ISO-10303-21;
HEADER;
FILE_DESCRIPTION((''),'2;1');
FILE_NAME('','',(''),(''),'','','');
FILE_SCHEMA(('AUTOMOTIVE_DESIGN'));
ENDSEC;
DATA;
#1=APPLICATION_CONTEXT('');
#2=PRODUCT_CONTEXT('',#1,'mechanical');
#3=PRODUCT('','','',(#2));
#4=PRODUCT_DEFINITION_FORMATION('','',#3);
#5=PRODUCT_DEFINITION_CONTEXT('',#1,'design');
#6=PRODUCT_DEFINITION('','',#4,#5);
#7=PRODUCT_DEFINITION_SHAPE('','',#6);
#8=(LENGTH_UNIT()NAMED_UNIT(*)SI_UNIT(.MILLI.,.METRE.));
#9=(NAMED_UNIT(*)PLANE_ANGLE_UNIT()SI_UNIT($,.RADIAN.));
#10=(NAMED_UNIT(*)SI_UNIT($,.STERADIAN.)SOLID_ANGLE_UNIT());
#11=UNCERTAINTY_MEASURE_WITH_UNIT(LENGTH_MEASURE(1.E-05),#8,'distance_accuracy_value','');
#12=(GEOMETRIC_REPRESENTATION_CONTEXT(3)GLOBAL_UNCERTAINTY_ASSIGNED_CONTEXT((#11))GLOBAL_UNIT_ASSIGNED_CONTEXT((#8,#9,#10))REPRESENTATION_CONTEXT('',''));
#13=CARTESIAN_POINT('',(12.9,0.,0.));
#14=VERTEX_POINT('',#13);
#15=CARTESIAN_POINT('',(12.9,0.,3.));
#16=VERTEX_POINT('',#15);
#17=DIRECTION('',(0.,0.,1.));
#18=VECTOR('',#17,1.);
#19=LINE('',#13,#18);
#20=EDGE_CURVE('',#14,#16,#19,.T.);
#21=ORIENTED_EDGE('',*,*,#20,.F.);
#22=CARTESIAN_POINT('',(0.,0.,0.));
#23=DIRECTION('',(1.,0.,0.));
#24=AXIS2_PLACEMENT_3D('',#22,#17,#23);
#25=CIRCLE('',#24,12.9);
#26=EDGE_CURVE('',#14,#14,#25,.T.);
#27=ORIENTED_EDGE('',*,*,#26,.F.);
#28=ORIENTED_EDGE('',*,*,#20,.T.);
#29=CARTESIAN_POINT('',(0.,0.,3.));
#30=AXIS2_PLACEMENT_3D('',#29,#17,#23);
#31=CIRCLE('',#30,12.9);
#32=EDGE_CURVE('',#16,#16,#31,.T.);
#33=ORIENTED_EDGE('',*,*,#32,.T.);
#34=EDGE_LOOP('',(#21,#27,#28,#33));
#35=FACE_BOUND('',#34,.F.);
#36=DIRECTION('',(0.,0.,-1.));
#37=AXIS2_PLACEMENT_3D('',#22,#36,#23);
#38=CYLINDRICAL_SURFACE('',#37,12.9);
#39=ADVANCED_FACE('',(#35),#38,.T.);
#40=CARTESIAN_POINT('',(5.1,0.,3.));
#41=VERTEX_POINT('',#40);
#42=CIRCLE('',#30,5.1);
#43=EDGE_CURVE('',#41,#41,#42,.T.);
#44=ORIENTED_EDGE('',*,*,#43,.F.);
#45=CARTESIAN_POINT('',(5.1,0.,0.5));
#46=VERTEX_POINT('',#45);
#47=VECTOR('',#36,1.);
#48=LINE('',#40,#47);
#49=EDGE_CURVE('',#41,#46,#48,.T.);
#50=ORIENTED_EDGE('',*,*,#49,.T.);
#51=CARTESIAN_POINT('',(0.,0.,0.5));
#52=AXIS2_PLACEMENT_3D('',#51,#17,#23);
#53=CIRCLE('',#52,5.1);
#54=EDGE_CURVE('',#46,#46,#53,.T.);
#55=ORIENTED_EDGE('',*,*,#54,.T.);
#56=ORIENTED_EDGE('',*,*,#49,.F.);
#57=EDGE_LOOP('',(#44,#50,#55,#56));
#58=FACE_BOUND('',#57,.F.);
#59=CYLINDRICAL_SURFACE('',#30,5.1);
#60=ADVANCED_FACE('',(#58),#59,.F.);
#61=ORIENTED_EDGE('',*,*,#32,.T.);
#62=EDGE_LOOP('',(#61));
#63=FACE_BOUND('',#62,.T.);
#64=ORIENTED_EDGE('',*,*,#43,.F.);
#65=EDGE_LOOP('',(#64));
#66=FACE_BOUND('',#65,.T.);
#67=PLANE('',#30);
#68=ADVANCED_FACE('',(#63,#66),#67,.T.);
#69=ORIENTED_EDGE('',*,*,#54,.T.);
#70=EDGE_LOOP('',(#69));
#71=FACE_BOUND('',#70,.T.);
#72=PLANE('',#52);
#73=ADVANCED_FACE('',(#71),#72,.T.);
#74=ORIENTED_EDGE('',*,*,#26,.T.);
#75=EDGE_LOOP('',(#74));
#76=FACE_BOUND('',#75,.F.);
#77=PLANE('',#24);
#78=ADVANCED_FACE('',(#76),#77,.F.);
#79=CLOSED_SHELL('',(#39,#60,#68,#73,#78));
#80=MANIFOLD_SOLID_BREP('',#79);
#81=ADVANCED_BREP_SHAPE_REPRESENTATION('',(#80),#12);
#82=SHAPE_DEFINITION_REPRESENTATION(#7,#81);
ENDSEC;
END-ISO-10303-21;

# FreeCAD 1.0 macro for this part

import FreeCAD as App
import Part
import Sketcher
Q = App.Units.Quantity

doc = App.newDocument("Part")
body = doc.addObject("PartDesign::Body", "Body")

# Sketch on XY plane
sketch1 = body.newObject("Sketcher::SketchObject", "Sketch")
sketch1.AttachmentSupport = (doc.getObject("XY_Plane"), [""])
sketch1.MapMode = "FlatFace"
sketch1.addGeometry(Part.Circle(App.Vector(0, 0, 0), App.Vector(0, 0, 1), 12.9), False)
sketch1.addConstraint(Sketcher.Constraint("Coincident", 0, 3, -1, 1))
sketch1.addConstraint(Sketcher.Constraint("Diameter", 0, Q("25.8 mm")))
pad1 = body.newObject("PartDesign::Pad", "Pad")
pad1.Profile = sketch1
pad1.Length = 3

# Sketch on XY plane
sketch2 = body.newObject("Sketcher::SketchObject", "Sketch001")
sketch2.AttachmentSupport = (doc.getObject("XY_Plane"), [""])
sketch2.MapMode = "FlatFace"
sketch2.AttachmentOffset = App.Placement(App.Vector(0, 0, 3), App.Rotation())
sketch2.addGeometry(Part.Circle(App.Vector(0, 0, 0), App.Vector(0, 0, 1), 5.1), False)
sketch2.addConstraint(Sketcher.Constraint("Coincident", 0, 3, -1, 1))
sketch2.addConstraint(Sketcher.Constraint("Diameter", 0, Q("10.2 mm")))
pocket1 = body.newObject("PartDesign::Pocket", "Pocket")
pocket1.Profile = sketch2
pocket1.Length = 2.5

doc.recompute()
